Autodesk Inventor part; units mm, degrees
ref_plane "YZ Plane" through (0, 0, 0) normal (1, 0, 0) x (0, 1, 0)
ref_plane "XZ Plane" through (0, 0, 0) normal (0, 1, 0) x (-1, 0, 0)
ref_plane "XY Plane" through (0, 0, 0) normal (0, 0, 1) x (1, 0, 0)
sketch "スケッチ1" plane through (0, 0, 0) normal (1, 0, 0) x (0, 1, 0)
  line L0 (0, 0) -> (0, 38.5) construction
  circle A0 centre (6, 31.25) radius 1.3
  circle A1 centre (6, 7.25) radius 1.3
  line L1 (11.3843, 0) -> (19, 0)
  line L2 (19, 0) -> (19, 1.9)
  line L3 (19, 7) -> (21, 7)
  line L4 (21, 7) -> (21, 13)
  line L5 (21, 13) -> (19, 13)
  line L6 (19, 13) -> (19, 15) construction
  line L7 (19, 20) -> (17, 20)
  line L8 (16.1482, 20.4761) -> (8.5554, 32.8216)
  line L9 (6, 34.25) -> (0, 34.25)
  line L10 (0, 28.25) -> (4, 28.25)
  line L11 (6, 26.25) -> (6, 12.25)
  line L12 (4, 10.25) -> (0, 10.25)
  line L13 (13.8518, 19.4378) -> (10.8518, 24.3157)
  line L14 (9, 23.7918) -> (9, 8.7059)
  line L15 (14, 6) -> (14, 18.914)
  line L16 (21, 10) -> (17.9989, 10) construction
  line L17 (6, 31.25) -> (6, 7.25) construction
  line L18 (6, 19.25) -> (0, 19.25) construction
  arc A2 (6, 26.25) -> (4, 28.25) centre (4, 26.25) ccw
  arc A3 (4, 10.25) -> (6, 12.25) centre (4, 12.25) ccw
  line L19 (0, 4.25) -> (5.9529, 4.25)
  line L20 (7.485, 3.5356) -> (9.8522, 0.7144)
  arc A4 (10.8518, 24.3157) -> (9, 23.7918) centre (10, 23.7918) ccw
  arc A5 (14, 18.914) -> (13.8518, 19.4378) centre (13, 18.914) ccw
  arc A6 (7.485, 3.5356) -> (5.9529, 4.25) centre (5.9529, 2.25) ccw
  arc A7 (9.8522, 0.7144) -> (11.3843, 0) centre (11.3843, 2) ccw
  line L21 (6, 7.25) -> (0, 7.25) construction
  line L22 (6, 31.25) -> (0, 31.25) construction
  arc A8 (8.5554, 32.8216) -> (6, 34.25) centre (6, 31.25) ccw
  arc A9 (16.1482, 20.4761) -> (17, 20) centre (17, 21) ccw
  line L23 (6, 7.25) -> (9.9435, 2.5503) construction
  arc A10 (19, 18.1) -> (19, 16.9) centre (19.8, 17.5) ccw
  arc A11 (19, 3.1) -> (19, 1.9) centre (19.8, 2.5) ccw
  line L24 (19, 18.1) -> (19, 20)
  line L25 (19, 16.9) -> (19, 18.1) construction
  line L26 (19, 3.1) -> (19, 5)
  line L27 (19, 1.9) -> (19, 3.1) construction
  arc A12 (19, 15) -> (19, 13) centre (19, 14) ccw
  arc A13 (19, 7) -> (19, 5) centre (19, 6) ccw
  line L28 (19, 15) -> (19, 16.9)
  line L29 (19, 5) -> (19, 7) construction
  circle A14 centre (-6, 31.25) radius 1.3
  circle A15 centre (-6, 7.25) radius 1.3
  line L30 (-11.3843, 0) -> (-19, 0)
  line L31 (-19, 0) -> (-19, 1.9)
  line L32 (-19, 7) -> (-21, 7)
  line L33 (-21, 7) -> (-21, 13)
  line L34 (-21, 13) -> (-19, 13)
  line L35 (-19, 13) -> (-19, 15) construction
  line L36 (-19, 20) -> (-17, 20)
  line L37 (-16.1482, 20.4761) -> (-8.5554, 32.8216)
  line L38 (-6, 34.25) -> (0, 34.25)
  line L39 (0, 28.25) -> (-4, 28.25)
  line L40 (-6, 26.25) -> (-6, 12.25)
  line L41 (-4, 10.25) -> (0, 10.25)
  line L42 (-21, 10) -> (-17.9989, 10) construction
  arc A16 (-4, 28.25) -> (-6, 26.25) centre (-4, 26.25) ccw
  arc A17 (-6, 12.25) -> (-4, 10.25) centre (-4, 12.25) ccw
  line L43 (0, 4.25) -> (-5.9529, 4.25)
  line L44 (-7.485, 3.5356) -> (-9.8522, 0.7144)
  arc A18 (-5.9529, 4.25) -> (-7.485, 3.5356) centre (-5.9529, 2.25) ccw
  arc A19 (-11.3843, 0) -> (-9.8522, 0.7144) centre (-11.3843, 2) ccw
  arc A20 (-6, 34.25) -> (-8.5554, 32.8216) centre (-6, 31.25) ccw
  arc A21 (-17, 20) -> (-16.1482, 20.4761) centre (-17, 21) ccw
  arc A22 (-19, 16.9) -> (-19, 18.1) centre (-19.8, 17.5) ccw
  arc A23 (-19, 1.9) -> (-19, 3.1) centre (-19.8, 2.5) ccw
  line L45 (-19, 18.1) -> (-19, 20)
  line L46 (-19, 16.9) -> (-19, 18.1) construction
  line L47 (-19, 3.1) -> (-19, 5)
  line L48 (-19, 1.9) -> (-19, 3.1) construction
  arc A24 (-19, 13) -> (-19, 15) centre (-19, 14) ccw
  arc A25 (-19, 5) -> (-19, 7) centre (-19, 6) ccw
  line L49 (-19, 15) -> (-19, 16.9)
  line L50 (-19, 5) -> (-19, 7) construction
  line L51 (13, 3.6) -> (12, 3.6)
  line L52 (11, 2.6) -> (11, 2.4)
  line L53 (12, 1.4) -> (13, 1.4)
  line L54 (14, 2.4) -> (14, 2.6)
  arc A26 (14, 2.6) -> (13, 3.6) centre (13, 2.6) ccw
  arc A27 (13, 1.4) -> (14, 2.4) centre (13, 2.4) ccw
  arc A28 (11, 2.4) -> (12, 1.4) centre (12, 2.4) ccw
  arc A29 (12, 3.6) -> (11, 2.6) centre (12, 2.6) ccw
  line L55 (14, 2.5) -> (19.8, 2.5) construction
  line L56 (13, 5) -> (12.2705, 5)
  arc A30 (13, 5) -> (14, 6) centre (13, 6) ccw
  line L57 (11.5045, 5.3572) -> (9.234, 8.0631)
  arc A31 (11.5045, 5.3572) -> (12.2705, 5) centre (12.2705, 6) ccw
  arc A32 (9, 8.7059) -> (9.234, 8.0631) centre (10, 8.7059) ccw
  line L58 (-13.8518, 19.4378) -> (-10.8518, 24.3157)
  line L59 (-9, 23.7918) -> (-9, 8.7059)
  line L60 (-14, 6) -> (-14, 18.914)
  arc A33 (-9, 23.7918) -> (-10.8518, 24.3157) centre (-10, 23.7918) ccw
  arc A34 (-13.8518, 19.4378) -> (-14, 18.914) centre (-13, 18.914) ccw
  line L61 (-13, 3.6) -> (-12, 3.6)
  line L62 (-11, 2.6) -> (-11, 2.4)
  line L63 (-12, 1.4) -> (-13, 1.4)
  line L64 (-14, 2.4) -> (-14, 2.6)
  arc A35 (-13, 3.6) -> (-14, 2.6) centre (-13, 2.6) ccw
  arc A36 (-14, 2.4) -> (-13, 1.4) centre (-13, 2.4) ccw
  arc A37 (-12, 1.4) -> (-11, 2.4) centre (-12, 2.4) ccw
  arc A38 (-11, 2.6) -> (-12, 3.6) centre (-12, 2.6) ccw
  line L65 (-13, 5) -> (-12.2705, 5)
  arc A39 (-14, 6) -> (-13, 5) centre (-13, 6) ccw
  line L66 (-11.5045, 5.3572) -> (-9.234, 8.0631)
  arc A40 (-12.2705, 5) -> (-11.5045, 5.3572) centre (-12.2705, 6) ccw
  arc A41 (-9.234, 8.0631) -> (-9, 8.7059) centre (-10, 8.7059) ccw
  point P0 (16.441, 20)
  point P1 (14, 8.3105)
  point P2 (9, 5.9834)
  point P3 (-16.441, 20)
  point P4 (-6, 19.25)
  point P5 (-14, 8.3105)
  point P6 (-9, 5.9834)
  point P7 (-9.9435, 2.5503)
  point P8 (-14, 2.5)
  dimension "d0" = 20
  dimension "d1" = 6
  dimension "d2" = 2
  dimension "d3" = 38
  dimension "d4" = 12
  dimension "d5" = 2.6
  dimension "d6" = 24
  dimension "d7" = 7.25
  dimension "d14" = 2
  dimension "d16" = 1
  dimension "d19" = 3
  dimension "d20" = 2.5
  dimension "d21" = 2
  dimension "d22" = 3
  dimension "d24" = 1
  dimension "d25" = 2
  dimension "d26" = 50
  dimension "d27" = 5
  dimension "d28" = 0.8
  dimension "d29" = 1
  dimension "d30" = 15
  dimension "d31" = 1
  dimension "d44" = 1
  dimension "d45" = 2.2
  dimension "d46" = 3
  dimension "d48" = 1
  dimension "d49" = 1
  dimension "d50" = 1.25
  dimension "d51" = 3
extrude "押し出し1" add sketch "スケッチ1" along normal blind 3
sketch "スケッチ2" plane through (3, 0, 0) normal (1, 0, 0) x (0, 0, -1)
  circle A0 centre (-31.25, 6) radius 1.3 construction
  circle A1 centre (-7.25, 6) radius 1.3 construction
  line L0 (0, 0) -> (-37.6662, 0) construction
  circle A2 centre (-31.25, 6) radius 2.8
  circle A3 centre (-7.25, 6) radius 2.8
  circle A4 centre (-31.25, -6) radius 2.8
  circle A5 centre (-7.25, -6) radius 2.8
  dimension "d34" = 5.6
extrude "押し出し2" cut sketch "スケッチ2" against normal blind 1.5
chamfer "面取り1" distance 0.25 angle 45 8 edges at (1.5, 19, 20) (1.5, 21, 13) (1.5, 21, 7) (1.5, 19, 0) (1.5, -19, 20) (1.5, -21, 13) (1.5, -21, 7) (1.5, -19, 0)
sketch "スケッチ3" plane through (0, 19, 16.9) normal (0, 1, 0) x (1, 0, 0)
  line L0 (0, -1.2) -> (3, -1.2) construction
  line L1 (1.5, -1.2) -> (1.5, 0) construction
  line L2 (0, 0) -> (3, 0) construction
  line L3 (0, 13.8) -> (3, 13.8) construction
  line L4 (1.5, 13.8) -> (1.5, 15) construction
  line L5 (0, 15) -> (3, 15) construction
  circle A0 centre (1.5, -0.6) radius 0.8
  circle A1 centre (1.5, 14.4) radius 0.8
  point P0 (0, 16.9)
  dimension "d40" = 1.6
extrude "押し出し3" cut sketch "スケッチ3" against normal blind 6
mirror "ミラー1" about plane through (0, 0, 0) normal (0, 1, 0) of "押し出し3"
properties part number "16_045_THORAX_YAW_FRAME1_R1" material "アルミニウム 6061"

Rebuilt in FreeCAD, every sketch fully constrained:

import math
import FreeCAD as App
import Part
import Sketcher
Q = App.Units.Quantity


def edges_at(feature, points):
    """Names of the edges that pass closest to the given points."""
    edges = feature.Shape.Edges
    near = lambda p: min(range(len(edges)), key=lambda i: edges[i].distToShape(Part.Vertex(*p))[0])
    return sorted({f"Edge{near(p) + 1}" for p in points})

doc = App.newDocument("Part")
body = doc.addObject("PartDesign::Body", "Body")

# Sketch on YZ plane
sketch1 = body.newObject("Sketcher::SketchObject", "Sketch")
sketch1.AttachmentSupport = (doc.getObject("YZ_Plane"), [""])
sketch1.MapMode = "FlatFace"
sketch1.addGeometry([
    Part.ArcOfCircle(Part.Circle(App.Vector(11.38, 2, 0), App.Vector(0, 0, 1), 2), math.radians(-140), math.radians(-90)),  # 0
    Part.LineSegment(App.Vector(11.38, 0, 0), App.Vector(19, 0, 0)),  # 1
    Part.LineSegment(App.Vector(19, 0, 0), App.Vector(19, 1.9, 0)),  # 2
    Part.ArcOfCircle(Part.Circle(App.Vector(19.8, 2.5, 0), App.Vector(0, 0, 1), 1), math.radians(143), math.radians(217)),  # 3
    Part.LineSegment(App.Vector(19, 3.1, 0), App.Vector(19, 5, 0)),  # 4
    Part.ArcOfCircle(Part.Circle(App.Vector(19, 6, 0), App.Vector(0, 0, 1), 1), math.radians(90), math.radians(270)),  # 5
    Part.LineSegment(App.Vector(19, 7, 0), App.Vector(21, 7, 0)),  # 6
    Part.LineSegment(App.Vector(21, 7, 0), App.Vector(21, 13, 0)),  # 7
    Part.LineSegment(App.Vector(21, 13, 0), App.Vector(19, 13, 0)),  # 8
    Part.ArcOfCircle(Part.Circle(App.Vector(19, 14, 0), App.Vector(0, 0, 1), 1), math.radians(90), math.radians(270)),  # 9
    Part.LineSegment(App.Vector(19, 15, 0), App.Vector(19, 16.9, 0)),  # 10
    Part.ArcOfCircle(Part.Circle(App.Vector(19.8, 17.5, 0), App.Vector(0, 0, 1), 1), math.radians(143), math.radians(217)),  # 11
    Part.LineSegment(App.Vector(19, 18.1, 0), App.Vector(19, 20, 0)),  # 12
    Part.LineSegment(App.Vector(19, 20, 0), App.Vector(17, 20, 0)),  # 13
    Part.ArcOfCircle(Part.Circle(App.Vector(17, 21, 0), App.Vector(0, 0, 1), 1), math.radians(-148), math.radians(-90)),  # 14
    Part.LineSegment(App.Vector(16.15, 20.48, 0), App.Vector(8.56, 32.82, 0)),  # 15
    Part.ArcOfCircle(Part.Circle(App.Vector(6, 31.25, 0), App.Vector(0, 0, 1), 3), math.radians(32), math.radians(90)),  # 16
    Part.LineSegment(App.Vector(6, 34.25, 0), App.Vector(-6, 34.25, 0)),  # 17
    Part.ArcOfCircle(Part.Circle(App.Vector(-6, 31.25, 0), App.Vector(0, 0, 1), 3), math.radians(90), math.radians(148)),  # 18
    Part.LineSegment(App.Vector(-8.56, 32.82, 0), App.Vector(-16.15, 20.48, 0)),  # 19
    Part.ArcOfCircle(Part.Circle(App.Vector(-17, 21, 0), App.Vector(0, 0, 1), 1), math.radians(-90), math.radians(-32)),  # 20
    Part.LineSegment(App.Vector(-17, 20, 0), App.Vector(-19, 20, 0)),  # 21
    Part.LineSegment(App.Vector(-19, 20, 0), App.Vector(-19, 18.1, 0)),  # 22
    Part.ArcOfCircle(Part.Circle(App.Vector(-19.8, 17.5, 0), App.Vector(0, 0, 1), 1), math.radians(-37), math.radians(37)),  # 23
    Part.LineSegment(App.Vector(-19, 16.9, 0), App.Vector(-19, 15, 0)),  # 24
    Part.ArcOfCircle(Part.Circle(App.Vector(-19, 14, 0), App.Vector(0, 0, 1), 1), math.radians(-90), math.radians(90)),  # 25
    Part.LineSegment(App.Vector(-19, 13, 0), App.Vector(-21, 13, 0)),  # 26
    Part.LineSegment(App.Vector(-21, 13, 0), App.Vector(-21, 7, 0)),  # 27
    Part.LineSegment(App.Vector(-21, 7, 0), App.Vector(-19, 7, 0)),  # 28
    Part.ArcOfCircle(Part.Circle(App.Vector(-19, 6, 0), App.Vector(0, 0, 1), 1), math.radians(-90), math.radians(90)),  # 29
    Part.LineSegment(App.Vector(-19, 5, 0), App.Vector(-19, 3.1, 0)),  # 30
    Part.ArcOfCircle(Part.Circle(App.Vector(-19.8, 2.5, 0), App.Vector(0, 0, 1), 1), math.radians(-37), math.radians(37)),  # 31
    Part.LineSegment(App.Vector(-19, 1.9, 0), App.Vector(-19, 0, 0)),  # 32
    Part.LineSegment(App.Vector(-19, 0, 0), App.Vector(-11.38, 0, 0)),  # 33
    Part.ArcOfCircle(Part.Circle(App.Vector(-11.38, 2, 0), App.Vector(0, 0, 1), 2), math.radians(-90), math.radians(-40)),  # 34
    Part.LineSegment(App.Vector(-9.85, 0.71, 0), App.Vector(-7.49, 3.54, 0)),  # 35
    Part.ArcOfCircle(Part.Circle(App.Vector(-5.95, 2.25, 0), App.Vector(0, 0, 1), 2), math.radians(90), math.radians(140)),  # 36
    Part.LineSegment(App.Vector(-5.95, 4.25, 0), App.Vector(5.95, 4.25, 0)),  # 37
    Part.ArcOfCircle(Part.Circle(App.Vector(5.95, 2.25, 0), App.Vector(0, 0, 1), 2), math.radians(40), math.radians(90)),  # 38
    Part.LineSegment(App.Vector(7.49, 3.54, 0), App.Vector(9.85, 0.71, 0)),  # 39
    Part.ArcOfCircle(Part.Circle(App.Vector(-13, 2.6, 0), App.Vector(0, 0, 1), 1), math.radians(90), math.radians(180)),  # 40
    Part.LineSegment(App.Vector(-13, 3.6, 0), App.Vector(-12, 3.6, 0)),  # 41
    Part.ArcOfCircle(Part.Circle(App.Vector(-12, 2.6, 0), App.Vector(0, 0, 1), 1), math.radians(0), math.radians(90)),  # 42
    Part.LineSegment(App.Vector(-11, 2.6, 0), App.Vector(-11, 2.4, 0)),  # 43
    Part.ArcOfCircle(Part.Circle(App.Vector(-12, 2.4, 0), App.Vector(0, 0, 1), 1), math.radians(-90), math.radians(0)),  # 44
    Part.LineSegment(App.Vector(-12, 1.4, 0), App.Vector(-13, 1.4, 0)),  # 45
    Part.ArcOfCircle(Part.Circle(App.Vector(-13, 2.4, 0), App.Vector(0, 0, 1), 1), math.radians(180), math.radians(270)),  # 46
    Part.LineSegment(App.Vector(-14, 2.4, 0), App.Vector(-14, 2.6, 0)),  # 47
    Part.Circle(App.Vector(-6, 7.25, 0), App.Vector(0, 0, 1), 1.3),  # 48
    Part.ArcOfCircle(Part.Circle(App.Vector(-13, 18.91, 0), App.Vector(0, 0, 1), 1), math.radians(148), math.radians(180)),  # 49
    Part.LineSegment(App.Vector(-13.85, 19.44, 0), App.Vector(-10.85, 24.32, 0)),  # 50
    Part.ArcOfCircle(Part.Circle(App.Vector(-10, 23.79, 0), App.Vector(0, 0, 1), 1), math.radians(0), math.radians(148)),  # 51
    Part.LineSegment(App.Vector(-9, 23.79, 0), App.Vector(-9, 8.71, 0)),  # 52
    Part.ArcOfCircle(Part.Circle(App.Vector(-10, 8.71, 0), App.Vector(0, 0, 1), 1), math.radians(-40), math.radians(0)),  # 53
    Part.LineSegment(App.Vector(-9.23, 8.06, 0), App.Vector(-11.5, 5.36, 0)),  # 54
    Part.ArcOfCircle(Part.Circle(App.Vector(-12.27, 6, 0), App.Vector(0, 0, 1), 1), math.radians(-90), math.radians(-40)),  # 55
    Part.LineSegment(App.Vector(-12.27, 5, 0), App.Vector(-13, 5, 0)),  # 56
    Part.ArcOfCircle(Part.Circle(App.Vector(-13, 6, 0), App.Vector(0, 0, 1), 1), math.radians(180), math.radians(270)),  # 57
    Part.LineSegment(App.Vector(-14, 6, 0), App.Vector(-14, 18.91, 0)),  # 58
    Part.Circle(App.Vector(6, 7.25, 0), App.Vector(0, 0, 1), 1.3),  # 59
    Part.LineSegment(App.Vector(12, 3.6, 0), App.Vector(13, 3.6, 0)),  # 60
    Part.ArcOfCircle(Part.Circle(App.Vector(13, 2.6, 0), App.Vector(0, 0, 1), 1), math.radians(0), math.radians(90)),  # 61
    Part.LineSegment(App.Vector(14, 2.6, 0), App.Vector(14, 2.4, 0)),  # 62
    Part.ArcOfCircle(Part.Circle(App.Vector(13, 2.4, 0), App.Vector(0, 0, 1), 1), math.radians(-90), math.radians(0)),  # 63
    Part.LineSegment(App.Vector(13, 1.4, 0), App.Vector(12, 1.4, 0)),  # 64
    Part.ArcOfCircle(Part.Circle(App.Vector(12, 2.4, 0), App.Vector(0, 0, 1), 1), math.radians(180), math.radians(270)),  # 65
    Part.LineSegment(App.Vector(11, 2.4, 0), App.Vector(11, 2.6, 0)),  # 66
    Part.ArcOfCircle(Part.Circle(App.Vector(12, 2.6, 0), App.Vector(0, 0, 1), 1), math.radians(90), math.radians(180)),  # 67
    Part.LineSegment(App.Vector(10.85, 24.32, 0), App.Vector(13.85, 19.44, 0)),  # 68
    Part.ArcOfCircle(Part.Circle(App.Vector(13, 18.91, 0), App.Vector(0, 0, 1), 1), math.radians(0), math.radians(32)),  # 69
    Part.LineSegment(App.Vector(14, 18.91, 0), App.Vector(14, 6, 0)),  # 70
    Part.ArcOfCircle(Part.Circle(App.Vector(13, 6, 0), App.Vector(0, 0, 1), 1), math.radians(-90), math.radians(0)),  # 71
    Part.LineSegment(App.Vector(13, 5, 0), App.Vector(12.27, 5, 0)),  # 72
    Part.ArcOfCircle(Part.Circle(App.Vector(12.27, 6, 0), App.Vector(0, 0, 1), 1), math.radians(-140), math.radians(-90)),  # 73
    Part.LineSegment(App.Vector(11.5, 5.36, 0), App.Vector(9.23, 8.06, 0)),  # 74
    Part.ArcOfCircle(Part.Circle(App.Vector(10, 8.71, 0), App.Vector(0, 0, 1), 1), math.radians(180), math.radians(220)),  # 75
    Part.LineSegment(App.Vector(9, 8.71, 0), App.Vector(9, 23.79, 0)),  # 76
    Part.ArcOfCircle(Part.Circle(App.Vector(10, 23.79, 0), App.Vector(0, 0, 1), 1), math.radians(32), math.radians(180)),  # 77
    Part.Circle(App.Vector(-6, 31.25, 0), App.Vector(0, 0, 1), 1.3),  # 78
    Part.LineSegment(App.Vector(-4, 28.25, 0), App.Vector(4, 28.25, 0)),  # 79
    Part.ArcOfCircle(Part.Circle(App.Vector(4, 26.25, 0), App.Vector(0, 0, 1), 2), math.radians(0), math.radians(90)),  # 80
    Part.LineSegment(App.Vector(6, 26.25, 0), App.Vector(6, 12.25, 0)),  # 81
    Part.ArcOfCircle(Part.Circle(App.Vector(4, 12.25, 0), App.Vector(0, 0, 1), 2), math.radians(-90), math.radians(0)),  # 82
    Part.LineSegment(App.Vector(4, 10.25, 0), App.Vector(-4, 10.25, 0)),  # 83
    Part.ArcOfCircle(Part.Circle(App.Vector(-4, 12.25, 0), App.Vector(0, 0, 1), 2), math.radians(180), math.radians(270)),  # 84
    Part.LineSegment(App.Vector(-6, 12.25, 0), App.Vector(-6, 26.25, 0)),  # 85
    Part.ArcOfCircle(Part.Circle(App.Vector(-4, 26.25, 0), App.Vector(0, 0, 1), 2), math.radians(90), math.radians(180)),  # 86
    Part.Circle(App.Vector(6, 31.25, 0), App.Vector(0, 0, 1), 1.3),  # 87
], False)
sketch1.addConstraint([
    Sketcher.Constraint("Tangent", 0, 2, 1, 1),
    Sketcher.Constraint("Coincident", 1, 2, 2, 1),
    Sketcher.Constraint("Coincident", 2, 2, 3, 2),
    Sketcher.Constraint("Coincident", 3, 1, 4, 1),
    Sketcher.Constraint("Coincident", 4, 2, 5, 2),
    Sketcher.Constraint("Tangent", 5, 1, 6, 1),
    Sketcher.Constraint("Coincident", 6, 2, 7, 1),
    Sketcher.Constraint("Coincident", 7, 2, 8, 1),
    Sketcher.Constraint("Tangent", 8, 2, 9, 2),
    Sketcher.Constraint("Coincident", 9, 1, 10, 1),
    Sketcher.Constraint("Coincident", 10, 2, 11, 2),
    Sketcher.Constraint("Coincident", 11, 1, 12, 1),
    Sketcher.Constraint("Coincident", 12, 2, 13, 1),
    Sketcher.Constraint("Tangent", 13, 2, 14, 2),
    Sketcher.Constraint("Tangent", 14, 1, 15, 1),
    Sketcher.Constraint("Tangent", 15, 2, 16, 1),
    Sketcher.Constraint("Tangent", 16, 2, 17, 1),
    Sketcher.Constraint("Tangent", 17, 2, 18, 1),
    Sketcher.Constraint("Tangent", 18, 2, 19, 1),
    Sketcher.Constraint("Tangent", 19, 2, 20, 2),
    Sketcher.Constraint("Tangent", 20, 1, 21, 1),
    Sketcher.Constraint("Coincident", 21, 2, 22, 1),
    Sketcher.Constraint("Coincident", 22, 2, 23, 2),
    Sketcher.Constraint("Coincident", 23, 1, 24, 1),
    Sketcher.Constraint("Coincident", 24, 2, 25, 2),
    Sketcher.Constraint("Tangent", 25, 1, 26, 1),
    Sketcher.Constraint("Coincident", 26, 2, 27, 1),
    Sketcher.Constraint("Coincident", 27, 2, 28, 1),
    Sketcher.Constraint("Tangent", 28, 2, 29, 2),
    Sketcher.Constraint("Coincident", 29, 1, 30, 1),
    Sketcher.Constraint("Coincident", 30, 2, 31, 2),
    Sketcher.Constraint("Coincident", 31, 1, 32, 1),
    Sketcher.Constraint("Coincident", 32, 2, 33, 1),
    Sketcher.Constraint("Tangent", 33, 2, 34, 1),
    Sketcher.Constraint("Tangent", 34, 2, 35, 1),
    Sketcher.Constraint("Tangent", 35, 2, 36, 2),
    Sketcher.Constraint("Tangent", 36, 1, 37, 1),
    Sketcher.Constraint("Tangent", 37, 2, 38, 2),
    Sketcher.Constraint("Tangent", 38, 1, 39, 1),
    Sketcher.Constraint("Tangent", 39, 2, 0, 1),
    Sketcher.Constraint("Tangent", 40, 1, 41, 1),
    Sketcher.Constraint("Tangent", 41, 2, 42, 2),
    Sketcher.Constraint("Tangent", 42, 1, 43, 1),
    Sketcher.Constraint("Tangent", 43, 2, 44, 2),
    Sketcher.Constraint("Tangent", 44, 1, 45, 1),
    Sketcher.Constraint("Tangent", 45, 2, 46, 2),
    Sketcher.Constraint("Tangent", 46, 1, 47, 1),
    Sketcher.Constraint("Tangent", 47, 2, 40, 2),
    Sketcher.Constraint("Tangent", 49, 1, 50, 1),
    Sketcher.Constraint("Tangent", 50, 2, 51, 2),
    Sketcher.Constraint("Tangent", 51, 1, 52, 1),
    Sketcher.Constraint("Tangent", 52, 2, 53, 2),
    Sketcher.Constraint("Tangent", 53, 1, 54, 1),
    Sketcher.Constraint("Tangent", 54, 2, 55, 2),
    Sketcher.Constraint("Tangent", 55, 1, 56, 1),
    Sketcher.Constraint("Tangent", 56, 2, 57, 2),
    Sketcher.Constraint("Tangent", 57, 1, 58, 1),
    Sketcher.Constraint("Tangent", 58, 2, 49, 2),
    Sketcher.Constraint("Tangent", 60, 2, 61, 2),
    Sketcher.Constraint("Tangent", 61, 1, 62, 1),
    Sketcher.Constraint("Tangent", 62, 2, 63, 2),
    Sketcher.Constraint("Tangent", 63, 1, 64, 1),
    Sketcher.Constraint("Tangent", 64, 2, 65, 2),
    Sketcher.Constraint("Tangent", 65, 1, 66, 1),
    Sketcher.Constraint("Tangent", 66, 2, 67, 2),
    Sketcher.Constraint("Tangent", 67, 1, 60, 1),
    Sketcher.Constraint("Tangent", 68, 2, 69, 2),
    Sketcher.Constraint("Tangent", 69, 1, 70, 1),
    Sketcher.Constraint("Tangent", 70, 2, 71, 2),
    Sketcher.Constraint("Tangent", 71, 1, 72, 1),
    Sketcher.Constraint("Tangent", 72, 2, 73, 2),
    Sketcher.Constraint("Tangent", 73, 1, 74, 1),
    Sketcher.Constraint("Tangent", 74, 2, 75, 2),
    Sketcher.Constraint("Tangent", 75, 1, 76, 1),
    Sketcher.Constraint("Tangent", 76, 2, 77, 2),
    Sketcher.Constraint("Tangent", 77, 1, 68, 1),
    Sketcher.Constraint("Tangent", 79, 2, 80, 2),
    Sketcher.Constraint("Tangent", 80, 1, 81, 1),
    Sketcher.Constraint("Tangent", 81, 2, 82, 2),
    Sketcher.Constraint("Tangent", 82, 1, 83, 1),
    Sketcher.Constraint("Tangent", 83, 2, 84, 2),
    Sketcher.Constraint("Tangent", 84, 1, 85, 1),
    Sketcher.Constraint("Tangent", 85, 2, 86, 2),
    Sketcher.Constraint("Tangent", 86, 1, 79, 1),
    Sketcher.Constraint("Horizontal", 1),
    Sketcher.Constraint("Vertical", 2),
    Sketcher.Constraint("Vertical", 4),
    Sketcher.Constraint("Horizontal", 6),
    Sketcher.Constraint("Vertical", 7),
    Sketcher.Constraint("Horizontal", 8),
    Sketcher.Constraint("Vertical", 10),
    Sketcher.Constraint("Vertical", 12),
    Sketcher.Constraint("Horizontal", 13),
    Sketcher.Constraint("Horizontal", 17),
    Sketcher.Constraint("Horizontal", 21),
    Sketcher.Constraint("Vertical", 22),
    Sketcher.Constraint("Vertical", 24),
    Sketcher.Constraint("Horizontal", 26),
    Sketcher.Constraint("Vertical", 27),
    Sketcher.Constraint("Horizontal", 28),
    Sketcher.Constraint("Vertical", 30),
    Sketcher.Constraint("Vertical", 32),
    Sketcher.Constraint("Horizontal", 33),
    Sketcher.Constraint("Horizontal", 37),
    Sketcher.Constraint("Horizontal", 41),
    Sketcher.Constraint("Vertical", 43),
    Sketcher.Constraint("Horizontal", 45),
    Sketcher.Constraint("Vertical", 47),
    Sketcher.Constraint("Vertical", 52),
    Sketcher.Constraint("Horizontal", 56),
    Sketcher.Constraint("Vertical", 58),
    Sketcher.Constraint("Horizontal", 60),
    Sketcher.Constraint("Vertical", 62),
    Sketcher.Constraint("Horizontal", 64),
    Sketcher.Constraint("Vertical", 66),
    Sketcher.Constraint("Vertical", 70),
    Sketcher.Constraint("Horizontal", 72),
    Sketcher.Constraint("Vertical", 76),
    Sketcher.Constraint("Horizontal", 79),
    Sketcher.Constraint("Vertical", 81),
    Sketcher.Constraint("Horizontal", 83),
    Sketcher.Constraint("Vertical", 85),
    Sketcher.Constraint("Coincident", 78, 3, 18, 3),
    Sketcher.Constraint("Coincident", 87, 3, 16, 3),
    Sketcher.Constraint("Equal", 3, 5),
    Sketcher.Constraint("Equal", 5, 9),
    Sketcher.Constraint("Equal", 9, 11),
    Sketcher.Constraint("Equal", 11, 14),
    Sketcher.Constraint("Equal", 16, 18),
    Sketcher.Constraint("Equal", 14, 20),
    Sketcher.Constraint("Equal", 20, 23),
    Sketcher.Constraint("Equal", 23, 25),
    Sketcher.Constraint("Equal", 25, 29),
    Sketcher.Constraint("Equal", 29, 31),
    Sketcher.Constraint("Equal", 0, 34),
    Sketcher.Constraint("Equal", 34, 36),
    Sketcher.Constraint("Equal", 36, 38),
    Sketcher.Constraint("Equal", 31, 40),
    Sketcher.Constraint("Equal", 40, 42),
    Sketcher.Constraint("Equal", 42, 44),
    Sketcher.Constraint("Equal", 44, 46),
    Sketcher.Constraint("Equal", 46, 49),
    Sketcher.Constraint("Equal", 49, 51),
    Sketcher.Constraint("Equal", 51, 53),
    Sketcher.Constraint("Equal", 53, 55),
    Sketcher.Constraint("Equal", 55, 57),
    Sketcher.Constraint("Equal", 48, 59),
    Sketcher.Constraint("Equal", 57, 61),
    Sketcher.Constraint("Equal", 61, 63),
    Sketcher.Constraint("Equal", 63, 65),
    Sketcher.Constraint("Equal", 65, 67),
    Sketcher.Constraint("Equal", 67, 69),
    Sketcher.Constraint("Equal", 69, 71),
    Sketcher.Constraint("Equal", 71, 73),
    Sketcher.Constraint("Equal", 73, 75),
    Sketcher.Constraint("Equal", 75, 77),
    Sketcher.Constraint("Equal", 59, 78),
    Sketcher.Constraint("Equal", 38, 80),
    Sketcher.Constraint("Equal", 80, 82),
    Sketcher.Constraint("Equal", 82, 84),
    Sketcher.Constraint("Equal", 84, 86),
    Sketcher.Constraint("Equal", 78, 87),
    Sketcher.Constraint("Symmetric", 1, 2, 32, 2, -1, 1),
    Sketcher.Constraint("Symmetric", 14, 3, 20, 3, -2),
    Sketcher.Constraint("Symmetric", 11, 3, 23, 3, -2),
    Sketcher.Constraint("Symmetric", 9, 3, 25, 3, -2),
    Sketcher.Constraint("Symmetric", 5, 3, 29, 3, -2),
    Sketcher.Constraint("Symmetric", 3, 3, 31, 3, -2),
    Sketcher.Constraint("Symmetric", 0, 3, 34, 3, -2),
    Sketcher.Constraint("Symmetric", 48, 3, 59, 3, -2),
    Sketcher.Constraint("Symmetric", 40, 3, 61, 3, -2),
    Sketcher.Constraint("Symmetric", 44, 3, 65, 3, -2),
    Sketcher.Constraint("Symmetric", 49, 3, 69, 3, -2),
    Sketcher.Constraint("Symmetric", 55, 3, 73, 3, -2),
    Sketcher.Constraint("Symmetric", 53, 3, 75, 3, -2),
    Sketcher.Constraint("Parallel", 19, 50),
    Sketcher.Constraint("Parallel", 35, 54),
    Sketcher.Constraint("Parallel", 15, 68),
    Sketcher.Constraint("Parallel", 39, 74),
    Sketcher.Constraint("Horizontal", 29, 3, 55, 3),
    Sketcher.Constraint("Horizontal", 51, 3, 77, 3),
    Sketcher.Constraint("Horizontal", 11, 1, 22, 2),
    Sketcher.Constraint("Horizontal", 10, 2, 23, 1),
    Sketcher.Constraint("Horizontal", 3, 1, 30, 2),
    Sketcher.Constraint("Vertical", 5, 3, 9, 3),
    Sketcher.Constraint("Vertical", 3, 3, 11, 3),
    Sketcher.Constraint("Vertical", 18, 3, 48, 3),
    Sketcher.Constraint("Vertical", 46, 3, 49, 3),
    Sketcher.Constraint("Vertical", 9, 3, 1, 2),
    Sketcher.Constraint("Vertical", 2, 2, 3, 1),
    Sketcher.Constraint("Vertical", 8, 2, 9, 1),
    Sketcher.Constraint("Vertical", 10, 2, 11, 1),
    Sketcher.Constraint("Vertical", 16, 2, 80, 1),
    Sketcher.Constraint("Vertical", 17, 2, 84, 1),
    Sketcher.Constraint("Equal", 8, 13),
    Sketcher.Constraint("Equal", 21, 26),
    Sketcher.Constraint("Equal", 2, 4),
    Sketcher.Constraint("Equal", 4, 10),
    Sketcher.Constraint("Equal", 10, 12),
    Sketcher.Constraint("Radius", 0, 2.0),
    Sketcher.Constraint("Radius", 3, 1.0),
    Sketcher.Constraint("Radius", 16, 3.0),
    Sketcher.Constraint("Diameter", 48, 2.6),
    Sketcher.Constraint("DistanceX", 6, 1, 6, 2, 2.0),
    Sketcher.Constraint("DistanceX", 17, 2, 17, 1, 12.0),
    Sketcher.Constraint("DistanceX", 41, 1, 41, 2, 1.0),
    Sketcher.Constraint("DistanceY", 7, 1, 7, 2, 6.0),
    Sketcher.Constraint("DistanceY", -1, 1, 5, 3, 6.0),
    Sketcher.Constraint("DistanceX", 42, 3, -1, 1, 12.0),
    Sketcher.Constraint("DistanceY", -1, 1, 40, 3, 2.6),
    Sketcher.Constraint("DistanceY", 81, 2, 81, 1, 14.0),
    Sketcher.Constraint("DistanceY", -1, 1, 48, 3, 7.25),
    Sketcher.Constraint("Angle", 35, Q("50.0008 deg")),
    Sketcher.Constraint("DistanceY", 2, 1, 2, 2, 1.9),
    Sketcher.Constraint("DistanceY", 43, 2, 43, 1, 0.2),
    Sketcher.Constraint("DistanceX", -1, 1, 5, 3, 19.0),
    Sketcher.Constraint("DistanceX", 51, 3, -1, 1, 10.0),
    Sketcher.Constraint("DistanceY", 52, 2, 52, 1, 15.086),
    Sketcher.Constraint("DistanceY", 58, 1, 58, 2, 12.914),
    Sketcher.Constraint("DistanceY", -1, 1, 16, 3, 31.25),
    Sketcher.Constraint("DistanceY", -1, 1, 36, 3, 2.25),
    Sketcher.Constraint("DistanceY", -1, 1, 80, 3, 26.25),
    Sketcher.Constraint("DistanceX", 1, 1, 1, 2, 7.6157),
])
pad1 = body.newObject("PartDesign::Pad", "Pad")
pad1.Profile = sketch1
pad1.Length = 3

# Sketch on YZ plane
sketch2 = body.newObject("Sketcher::SketchObject", "Sketch001")
sketch2.AttachmentSupport = (doc.getObject("YZ_Plane"), [""])
sketch2.MapMode = "FlatFace"
sketch2.AttachmentOffset = App.Placement(App.Vector(0, 0, 3), App.Rotation())
sketch2.addGeometry([
    Part.Circle(App.Vector(6, 31.2, 0), App.Vector(0, 0, 1), 2.8),
    Part.Circle(App.Vector(6, 7.2, 0), App.Vector(0, 0, 1), 2.8),
    Part.Circle(App.Vector(-6, 31.2, 0), App.Vector(0, 0, 1), 2.8),
    Part.Circle(App.Vector(-6, 7.2, 0), App.Vector(0, 0, 1), 2.8),
], False)
sketch2.addConstraint([
    Sketcher.Constraint("Equal", 0, 1),
    Sketcher.Constraint("Equal", 1, 2),
    Sketcher.Constraint("Equal", 2, 3),
    Sketcher.Constraint("Symmetric", 0, 3, 2, 3, -2),
    Sketcher.Constraint("Symmetric", 1, 3, 3, 3, -2),
    Sketcher.Constraint("Vertical", 0, 3, 1, 3),
    Sketcher.Constraint("Diameter", 0, 5.6),
    Sketcher.Constraint("DistanceX", -1, 1, 0, 3, 6.0),
    Sketcher.Constraint("DistanceY", 1, 3, 0, 3, 24.0),
    Sketcher.Constraint("DistanceY", -1, 1, 0, 3, 31.25),
])
pocket1 = body.newObject("PartDesign::Pocket", "Pocket")
pocket1.Profile = sketch2
pocket1.Length = 1.5
doc.recompute()

chamfer = body.newObject("PartDesign::Chamfer", "Chamfer")
chamfer.Base = (pocket1, edges_at(pocket1, [
    (1.5, 19, 20),
    (1.5, 21, 13),
    (1.5, 21, 7),
    (1.5, 19, 0),
    (1.5, -19, 20),
    (1.5, -21, 13),
    (1.5, -21, 7),
    (1.5, -19, 0),
]))
chamfer.Size = 0.25

# Sketch on XZ plane
sketch3 = body.newObject("Sketcher::SketchObject", "Sketch002")
sketch3.AttachmentSupport = (doc.getObject("XZ_Plane"), [""])
sketch3.MapMode = "FlatFace"
sketch3.AttachmentOffset = App.Placement(App.Vector(0, 0, -19), App.Rotation())
sketch3.addGeometry([
    Part.Circle(App.Vector(1.5, 17.5, 0), App.Vector(0, 0, 1), 0.8),
    Part.Circle(App.Vector(1.5, 2.5, 0), App.Vector(0, 0, 1), 0.8),
], False)
sketch3.addConstraint([
    Sketcher.Constraint("Equal", 0, 1),
    Sketcher.Constraint("Vertical", 0, 3, 1, 3),
    Sketcher.Constraint("Diameter", 0, 1.6),
    Sketcher.Constraint("DistanceY", 1, 3, 0, 3, 15.0),
    Sketcher.Constraint("DistanceX", -1, 1, 0, 3, 1.5),
    Sketcher.Constraint("DistanceY", -1, 1, 0, 3, 17.5),
])
pocket2 = body.newObject("PartDesign::Pocket", "Pocket001")
pocket2.Profile = sketch3
pocket2.Length = 6
pocket2.Reversed = True
doc.recompute()

mirrored = body.newObject("PartDesign::Mirrored", "Mirrored")
mirrored.Originals = [pocket2]
mirrored.MirrorPlane = (doc.getObject("XZ_Plane"), [""])
body.Tip = mirrored

doc.recompute()
